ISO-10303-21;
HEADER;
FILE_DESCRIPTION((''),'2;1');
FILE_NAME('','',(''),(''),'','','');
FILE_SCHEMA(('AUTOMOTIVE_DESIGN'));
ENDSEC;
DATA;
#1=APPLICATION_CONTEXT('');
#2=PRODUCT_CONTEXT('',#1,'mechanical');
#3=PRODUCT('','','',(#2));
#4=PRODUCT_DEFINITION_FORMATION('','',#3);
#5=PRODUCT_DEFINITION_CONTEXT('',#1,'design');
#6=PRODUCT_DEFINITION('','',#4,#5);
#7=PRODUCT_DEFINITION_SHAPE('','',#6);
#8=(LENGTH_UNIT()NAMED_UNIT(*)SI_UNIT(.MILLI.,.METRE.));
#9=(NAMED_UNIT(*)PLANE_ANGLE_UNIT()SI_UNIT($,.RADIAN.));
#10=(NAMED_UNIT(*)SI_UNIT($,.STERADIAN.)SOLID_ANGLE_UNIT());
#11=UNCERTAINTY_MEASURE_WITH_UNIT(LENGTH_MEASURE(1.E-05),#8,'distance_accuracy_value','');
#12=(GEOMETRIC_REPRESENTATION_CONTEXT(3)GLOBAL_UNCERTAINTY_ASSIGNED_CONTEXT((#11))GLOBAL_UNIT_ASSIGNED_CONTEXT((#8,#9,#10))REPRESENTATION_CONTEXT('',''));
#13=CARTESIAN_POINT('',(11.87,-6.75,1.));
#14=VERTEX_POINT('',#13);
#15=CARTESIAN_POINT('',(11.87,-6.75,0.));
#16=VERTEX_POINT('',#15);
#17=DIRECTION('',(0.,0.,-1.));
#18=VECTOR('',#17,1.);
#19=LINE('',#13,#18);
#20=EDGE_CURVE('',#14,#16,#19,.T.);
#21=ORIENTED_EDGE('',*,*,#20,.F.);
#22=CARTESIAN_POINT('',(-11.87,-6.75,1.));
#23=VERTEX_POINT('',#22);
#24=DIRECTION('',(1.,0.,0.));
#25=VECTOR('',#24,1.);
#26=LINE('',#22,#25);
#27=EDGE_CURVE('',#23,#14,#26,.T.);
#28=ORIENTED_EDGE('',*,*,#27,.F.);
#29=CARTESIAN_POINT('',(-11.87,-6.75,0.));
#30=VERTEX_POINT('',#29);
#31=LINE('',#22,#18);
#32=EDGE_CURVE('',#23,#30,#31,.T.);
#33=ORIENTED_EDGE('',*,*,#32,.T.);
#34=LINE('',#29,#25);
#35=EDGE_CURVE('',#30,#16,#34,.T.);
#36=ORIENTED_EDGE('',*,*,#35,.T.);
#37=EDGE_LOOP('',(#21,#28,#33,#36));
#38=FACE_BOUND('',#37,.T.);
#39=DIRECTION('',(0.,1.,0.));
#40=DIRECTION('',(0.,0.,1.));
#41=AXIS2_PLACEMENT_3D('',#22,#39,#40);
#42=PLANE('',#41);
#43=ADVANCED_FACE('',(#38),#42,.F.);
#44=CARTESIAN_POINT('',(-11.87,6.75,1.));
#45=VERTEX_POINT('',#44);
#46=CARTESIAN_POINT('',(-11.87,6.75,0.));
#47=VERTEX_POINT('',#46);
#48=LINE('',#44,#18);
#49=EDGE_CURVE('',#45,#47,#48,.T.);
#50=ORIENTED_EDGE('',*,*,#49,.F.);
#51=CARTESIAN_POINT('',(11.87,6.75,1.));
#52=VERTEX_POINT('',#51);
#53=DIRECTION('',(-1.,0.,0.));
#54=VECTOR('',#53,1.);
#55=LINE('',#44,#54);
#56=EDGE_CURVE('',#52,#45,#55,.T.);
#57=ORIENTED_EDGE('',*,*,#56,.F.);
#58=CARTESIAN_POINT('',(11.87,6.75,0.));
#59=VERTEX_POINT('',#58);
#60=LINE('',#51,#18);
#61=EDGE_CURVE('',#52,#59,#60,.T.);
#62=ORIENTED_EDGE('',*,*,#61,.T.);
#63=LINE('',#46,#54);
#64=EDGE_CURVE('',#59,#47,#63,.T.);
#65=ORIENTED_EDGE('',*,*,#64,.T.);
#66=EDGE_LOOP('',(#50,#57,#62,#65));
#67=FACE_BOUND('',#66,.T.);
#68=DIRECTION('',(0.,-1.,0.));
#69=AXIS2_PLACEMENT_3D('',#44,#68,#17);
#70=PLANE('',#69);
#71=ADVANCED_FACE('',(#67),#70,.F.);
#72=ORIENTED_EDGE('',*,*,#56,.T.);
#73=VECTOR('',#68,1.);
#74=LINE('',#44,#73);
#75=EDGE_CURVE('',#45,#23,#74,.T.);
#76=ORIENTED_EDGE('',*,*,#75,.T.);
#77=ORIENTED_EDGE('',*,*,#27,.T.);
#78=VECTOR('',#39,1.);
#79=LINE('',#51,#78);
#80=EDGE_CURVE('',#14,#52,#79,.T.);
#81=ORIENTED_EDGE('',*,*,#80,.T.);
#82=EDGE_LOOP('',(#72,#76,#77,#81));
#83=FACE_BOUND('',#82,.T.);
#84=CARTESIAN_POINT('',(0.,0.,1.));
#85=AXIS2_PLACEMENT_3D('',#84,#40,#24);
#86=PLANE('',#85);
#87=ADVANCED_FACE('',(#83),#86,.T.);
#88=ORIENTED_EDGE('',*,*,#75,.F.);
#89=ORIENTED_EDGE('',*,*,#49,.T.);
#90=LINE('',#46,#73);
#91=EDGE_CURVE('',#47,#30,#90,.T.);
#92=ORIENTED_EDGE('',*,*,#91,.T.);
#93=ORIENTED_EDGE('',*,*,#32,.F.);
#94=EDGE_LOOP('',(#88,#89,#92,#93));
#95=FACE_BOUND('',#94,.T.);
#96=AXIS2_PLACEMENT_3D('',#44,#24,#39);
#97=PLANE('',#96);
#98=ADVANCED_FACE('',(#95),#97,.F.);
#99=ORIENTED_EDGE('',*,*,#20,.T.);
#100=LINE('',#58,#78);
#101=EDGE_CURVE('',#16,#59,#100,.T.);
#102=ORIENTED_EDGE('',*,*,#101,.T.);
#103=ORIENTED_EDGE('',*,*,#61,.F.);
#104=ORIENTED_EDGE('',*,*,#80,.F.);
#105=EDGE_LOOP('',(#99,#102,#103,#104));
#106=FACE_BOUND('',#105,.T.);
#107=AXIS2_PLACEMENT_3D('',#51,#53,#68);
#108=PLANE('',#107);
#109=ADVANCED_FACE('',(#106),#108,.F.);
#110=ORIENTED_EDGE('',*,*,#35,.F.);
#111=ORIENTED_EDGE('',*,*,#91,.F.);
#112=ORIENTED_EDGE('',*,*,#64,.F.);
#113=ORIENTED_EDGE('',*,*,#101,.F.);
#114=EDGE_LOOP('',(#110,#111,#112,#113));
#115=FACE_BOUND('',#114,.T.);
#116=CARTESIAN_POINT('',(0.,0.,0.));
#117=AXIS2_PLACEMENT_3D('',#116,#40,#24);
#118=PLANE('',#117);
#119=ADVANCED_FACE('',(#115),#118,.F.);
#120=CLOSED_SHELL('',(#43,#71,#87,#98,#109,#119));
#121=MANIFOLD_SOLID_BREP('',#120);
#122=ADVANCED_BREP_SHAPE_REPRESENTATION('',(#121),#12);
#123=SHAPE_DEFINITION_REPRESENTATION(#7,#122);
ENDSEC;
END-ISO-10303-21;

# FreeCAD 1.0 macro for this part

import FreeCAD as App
import Part
import Sketcher

V = App.Vector

doc = App.newDocument("Part")
body = doc.addObject("PartDesign::Body", "Body")

# Sketch on XY plane
sketch1 = body.newObject("Sketcher::SketchObject", "Sketch")
sketch1.AttachmentSupport = (doc.getObject("XY_Plane"), [""])
sketch1.MapMode = "FlatFace"
sketch1.addGeometry(Part.LineSegment(V(-12, 7, 0), V(-12, -7, 0)), False)
sketch1.addGeometry(Part.LineSegment(V(-12, -7, 0), V(12, -7, 0)), False)
sketch1.addGeometry(Part.LineSegment(V(12, -7, 0), V(12, 7, 0)), False)
sketch1.addGeometry(Part.LineSegment(V(12, 7, 0), V(-12, 7, 0)), False)
sketch1.addConstraint(Sketcher.Constraint("Coincident", 0, 2, 1, 1))
sketch1.addConstraint(Sketcher.Constraint("Coincident", 1, 2, 2, 1))
sketch1.addConstraint(Sketcher.Constraint("Coincident", 2, 2, 3, 1))
sketch1.addConstraint(Sketcher.Constraint("Coincident", 3, 2, 0, 1))
sketch1.addConstraint(Sketcher.Constraint("Vertical", 0))
sketch1.addConstraint(Sketcher.Constraint("Horizontal", 1))
sketch1.addConstraint(Sketcher.Constraint("Vertical", 2))
sketch1.addConstraint(Sketcher.Constraint("Horizontal", 3))
sketch1.addConstraint(Sketcher.Constraint("Symmetric", 0, 2, 2, 2, -1, 1))
sketch1.addConstraint(Sketcher.Constraint("DistanceY", 0, 2, 0, 1, 13.5))
sketch1.addConstraint(Sketcher.Constraint("DistanceX", 1, 1, 1, 2, 23.74))
pad1 = body.newObject("PartDesign::Pad", "Pad")
pad1.Profile = sketch1
pad1.Length = 1

doc.recompute()
